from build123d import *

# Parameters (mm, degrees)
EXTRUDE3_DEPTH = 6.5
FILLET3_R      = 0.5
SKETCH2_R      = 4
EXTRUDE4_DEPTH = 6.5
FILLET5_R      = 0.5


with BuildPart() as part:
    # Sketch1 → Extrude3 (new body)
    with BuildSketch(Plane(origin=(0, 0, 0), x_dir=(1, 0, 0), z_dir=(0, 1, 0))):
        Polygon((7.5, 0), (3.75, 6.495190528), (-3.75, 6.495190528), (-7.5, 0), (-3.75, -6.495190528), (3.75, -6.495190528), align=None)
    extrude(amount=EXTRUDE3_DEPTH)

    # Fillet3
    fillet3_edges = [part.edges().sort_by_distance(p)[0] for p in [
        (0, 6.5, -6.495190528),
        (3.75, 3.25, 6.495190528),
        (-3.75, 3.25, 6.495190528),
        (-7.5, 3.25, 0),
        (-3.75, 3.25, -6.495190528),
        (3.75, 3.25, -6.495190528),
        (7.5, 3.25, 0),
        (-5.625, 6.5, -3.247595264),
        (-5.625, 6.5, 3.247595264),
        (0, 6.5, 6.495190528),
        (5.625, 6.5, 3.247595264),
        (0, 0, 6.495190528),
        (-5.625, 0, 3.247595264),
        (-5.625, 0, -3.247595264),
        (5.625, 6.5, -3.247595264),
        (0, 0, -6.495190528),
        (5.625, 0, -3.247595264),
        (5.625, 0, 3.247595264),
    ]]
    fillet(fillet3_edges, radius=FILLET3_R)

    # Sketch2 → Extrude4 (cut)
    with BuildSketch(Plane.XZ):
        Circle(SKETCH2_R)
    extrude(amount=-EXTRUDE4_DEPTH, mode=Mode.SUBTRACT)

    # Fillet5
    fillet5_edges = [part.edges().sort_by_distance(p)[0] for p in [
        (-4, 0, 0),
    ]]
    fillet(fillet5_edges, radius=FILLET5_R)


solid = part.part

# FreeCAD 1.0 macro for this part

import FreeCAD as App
import Part
import Sketcher
from FreeCAD import Vector
Q = App.Units.Quantity


def edges_at(feature, points):
    """Names of the edges that pass closest to the given points."""
    edges = feature.Shape.Edges
    near = lambda p: min(range(len(edges)), key=lambda i: edges[i].distToShape(Part.Vertex(*p))[0])
    return sorted({f"Edge{near(p) + 1}" for p in points})

doc = App.newDocument("Part")
body = doc.addObject("PartDesign::Body", "Body")

sketch1 = body.newObject("Sketcher::SketchObject", "Sketch")
sketch1.AttachmentSupport = (doc.getObject("XZ_Plane"), [""])
sketch1.MapMode = "FlatFace"
sketch1.addGeometry([
    Part.LineSegment(Vector(8, 0, 0), Vector(4, -6, 0)),
    Part.LineSegment(Vector(4, -6, 0), Vector(-4, -6, 0)),
    Part.LineSegment(Vector(-4, -6, 0), Vector(-8, 0, 0)),
    Part.LineSegment(Vector(-8, 0, 0), Vector(-4, 6, 0)),
    Part.LineSegment(Vector(-4, 6, 0), Vector(4, 6, 0)),
    Part.LineSegment(Vector(4, 6, 0), Vector(8, 0, 0)),
], False)
sketch1.addConstraint([
    Sketcher.Constraint("Coincident", 0, 2, 1, 1),
    Sketcher.Constraint("Coincident", 1, 2, 2, 1),
    Sketcher.Constraint("Coincident", 2, 2, 3, 1),
    Sketcher.Constraint("Coincident", 3, 2, 4, 1),
    Sketcher.Constraint("Coincident", 4, 2, 5, 1),
    Sketcher.Constraint("Coincident", 5, 2, 0, 1),
    Sketcher.Constraint("Horizontal", 1),
    Sketcher.Constraint("Horizontal", 4),
    Sketcher.Constraint("Symmetric", 0, 2, 3, 2, -1, 1),
    Sketcher.Constraint("Symmetric", 2, 2, 5, 2, -1, 1),
    Sketcher.Constraint("PointOnObject", 2, 2, -1),
    Sketcher.Constraint("Parallel", 2, 5),
    Sketcher.Constraint("Vertical", 1, 2, 3, 2),
    Sketcher.Constraint("Angle", 0, Q("-120 deg")),
    Sketcher.Constraint("DistanceX", 1, 2, 1, 1, 7.5),
    Sketcher.Constraint("DistanceX", 2, 2, 5, 2, 15.0),
])
pad1 = body.newObject("PartDesign::Pad", "Pad")
pad1.Profile = sketch1
pad1.Length = 6.5
pad1.Reversed = True
doc.recompute()

fillet = body.newObject("PartDesign::Fillet", "Fillet")
fillet.Base = (pad1, ["Edge1"])
fillet.UseAllEdges = True
fillet.Radius = 0.5

sketch2 = body.newObject("Sketcher::SketchObject", "Sketch001")
sketch2.AttachmentSupport = (doc.getObject("XZ_Plane"), [""])
sketch2.MapMode = "FlatFace"
sketch2.addGeometry(Part.Circle(Vector(0, 0, 0), Vector(0, 0, 1), 4), False)
sketch2.addConstraint([
    Sketcher.Constraint("Coincident", 0, 3, -1, 1),
    Sketcher.Constraint("Diameter", 0, 8.0),
])
pocket1 = body.newObject("PartDesign::Pocket", "Pocket")
pocket1.Profile = sketch2
pocket1.Length = 6.5
doc.recompute()

fillet2 = body.newObject("PartDesign::Fillet", "Fillet001")
fillet2.Base = (pocket1, edges_at(pocket1, [(-4, 0, 0)]))
fillet2.Radius = 0.5

doc.recompute()
